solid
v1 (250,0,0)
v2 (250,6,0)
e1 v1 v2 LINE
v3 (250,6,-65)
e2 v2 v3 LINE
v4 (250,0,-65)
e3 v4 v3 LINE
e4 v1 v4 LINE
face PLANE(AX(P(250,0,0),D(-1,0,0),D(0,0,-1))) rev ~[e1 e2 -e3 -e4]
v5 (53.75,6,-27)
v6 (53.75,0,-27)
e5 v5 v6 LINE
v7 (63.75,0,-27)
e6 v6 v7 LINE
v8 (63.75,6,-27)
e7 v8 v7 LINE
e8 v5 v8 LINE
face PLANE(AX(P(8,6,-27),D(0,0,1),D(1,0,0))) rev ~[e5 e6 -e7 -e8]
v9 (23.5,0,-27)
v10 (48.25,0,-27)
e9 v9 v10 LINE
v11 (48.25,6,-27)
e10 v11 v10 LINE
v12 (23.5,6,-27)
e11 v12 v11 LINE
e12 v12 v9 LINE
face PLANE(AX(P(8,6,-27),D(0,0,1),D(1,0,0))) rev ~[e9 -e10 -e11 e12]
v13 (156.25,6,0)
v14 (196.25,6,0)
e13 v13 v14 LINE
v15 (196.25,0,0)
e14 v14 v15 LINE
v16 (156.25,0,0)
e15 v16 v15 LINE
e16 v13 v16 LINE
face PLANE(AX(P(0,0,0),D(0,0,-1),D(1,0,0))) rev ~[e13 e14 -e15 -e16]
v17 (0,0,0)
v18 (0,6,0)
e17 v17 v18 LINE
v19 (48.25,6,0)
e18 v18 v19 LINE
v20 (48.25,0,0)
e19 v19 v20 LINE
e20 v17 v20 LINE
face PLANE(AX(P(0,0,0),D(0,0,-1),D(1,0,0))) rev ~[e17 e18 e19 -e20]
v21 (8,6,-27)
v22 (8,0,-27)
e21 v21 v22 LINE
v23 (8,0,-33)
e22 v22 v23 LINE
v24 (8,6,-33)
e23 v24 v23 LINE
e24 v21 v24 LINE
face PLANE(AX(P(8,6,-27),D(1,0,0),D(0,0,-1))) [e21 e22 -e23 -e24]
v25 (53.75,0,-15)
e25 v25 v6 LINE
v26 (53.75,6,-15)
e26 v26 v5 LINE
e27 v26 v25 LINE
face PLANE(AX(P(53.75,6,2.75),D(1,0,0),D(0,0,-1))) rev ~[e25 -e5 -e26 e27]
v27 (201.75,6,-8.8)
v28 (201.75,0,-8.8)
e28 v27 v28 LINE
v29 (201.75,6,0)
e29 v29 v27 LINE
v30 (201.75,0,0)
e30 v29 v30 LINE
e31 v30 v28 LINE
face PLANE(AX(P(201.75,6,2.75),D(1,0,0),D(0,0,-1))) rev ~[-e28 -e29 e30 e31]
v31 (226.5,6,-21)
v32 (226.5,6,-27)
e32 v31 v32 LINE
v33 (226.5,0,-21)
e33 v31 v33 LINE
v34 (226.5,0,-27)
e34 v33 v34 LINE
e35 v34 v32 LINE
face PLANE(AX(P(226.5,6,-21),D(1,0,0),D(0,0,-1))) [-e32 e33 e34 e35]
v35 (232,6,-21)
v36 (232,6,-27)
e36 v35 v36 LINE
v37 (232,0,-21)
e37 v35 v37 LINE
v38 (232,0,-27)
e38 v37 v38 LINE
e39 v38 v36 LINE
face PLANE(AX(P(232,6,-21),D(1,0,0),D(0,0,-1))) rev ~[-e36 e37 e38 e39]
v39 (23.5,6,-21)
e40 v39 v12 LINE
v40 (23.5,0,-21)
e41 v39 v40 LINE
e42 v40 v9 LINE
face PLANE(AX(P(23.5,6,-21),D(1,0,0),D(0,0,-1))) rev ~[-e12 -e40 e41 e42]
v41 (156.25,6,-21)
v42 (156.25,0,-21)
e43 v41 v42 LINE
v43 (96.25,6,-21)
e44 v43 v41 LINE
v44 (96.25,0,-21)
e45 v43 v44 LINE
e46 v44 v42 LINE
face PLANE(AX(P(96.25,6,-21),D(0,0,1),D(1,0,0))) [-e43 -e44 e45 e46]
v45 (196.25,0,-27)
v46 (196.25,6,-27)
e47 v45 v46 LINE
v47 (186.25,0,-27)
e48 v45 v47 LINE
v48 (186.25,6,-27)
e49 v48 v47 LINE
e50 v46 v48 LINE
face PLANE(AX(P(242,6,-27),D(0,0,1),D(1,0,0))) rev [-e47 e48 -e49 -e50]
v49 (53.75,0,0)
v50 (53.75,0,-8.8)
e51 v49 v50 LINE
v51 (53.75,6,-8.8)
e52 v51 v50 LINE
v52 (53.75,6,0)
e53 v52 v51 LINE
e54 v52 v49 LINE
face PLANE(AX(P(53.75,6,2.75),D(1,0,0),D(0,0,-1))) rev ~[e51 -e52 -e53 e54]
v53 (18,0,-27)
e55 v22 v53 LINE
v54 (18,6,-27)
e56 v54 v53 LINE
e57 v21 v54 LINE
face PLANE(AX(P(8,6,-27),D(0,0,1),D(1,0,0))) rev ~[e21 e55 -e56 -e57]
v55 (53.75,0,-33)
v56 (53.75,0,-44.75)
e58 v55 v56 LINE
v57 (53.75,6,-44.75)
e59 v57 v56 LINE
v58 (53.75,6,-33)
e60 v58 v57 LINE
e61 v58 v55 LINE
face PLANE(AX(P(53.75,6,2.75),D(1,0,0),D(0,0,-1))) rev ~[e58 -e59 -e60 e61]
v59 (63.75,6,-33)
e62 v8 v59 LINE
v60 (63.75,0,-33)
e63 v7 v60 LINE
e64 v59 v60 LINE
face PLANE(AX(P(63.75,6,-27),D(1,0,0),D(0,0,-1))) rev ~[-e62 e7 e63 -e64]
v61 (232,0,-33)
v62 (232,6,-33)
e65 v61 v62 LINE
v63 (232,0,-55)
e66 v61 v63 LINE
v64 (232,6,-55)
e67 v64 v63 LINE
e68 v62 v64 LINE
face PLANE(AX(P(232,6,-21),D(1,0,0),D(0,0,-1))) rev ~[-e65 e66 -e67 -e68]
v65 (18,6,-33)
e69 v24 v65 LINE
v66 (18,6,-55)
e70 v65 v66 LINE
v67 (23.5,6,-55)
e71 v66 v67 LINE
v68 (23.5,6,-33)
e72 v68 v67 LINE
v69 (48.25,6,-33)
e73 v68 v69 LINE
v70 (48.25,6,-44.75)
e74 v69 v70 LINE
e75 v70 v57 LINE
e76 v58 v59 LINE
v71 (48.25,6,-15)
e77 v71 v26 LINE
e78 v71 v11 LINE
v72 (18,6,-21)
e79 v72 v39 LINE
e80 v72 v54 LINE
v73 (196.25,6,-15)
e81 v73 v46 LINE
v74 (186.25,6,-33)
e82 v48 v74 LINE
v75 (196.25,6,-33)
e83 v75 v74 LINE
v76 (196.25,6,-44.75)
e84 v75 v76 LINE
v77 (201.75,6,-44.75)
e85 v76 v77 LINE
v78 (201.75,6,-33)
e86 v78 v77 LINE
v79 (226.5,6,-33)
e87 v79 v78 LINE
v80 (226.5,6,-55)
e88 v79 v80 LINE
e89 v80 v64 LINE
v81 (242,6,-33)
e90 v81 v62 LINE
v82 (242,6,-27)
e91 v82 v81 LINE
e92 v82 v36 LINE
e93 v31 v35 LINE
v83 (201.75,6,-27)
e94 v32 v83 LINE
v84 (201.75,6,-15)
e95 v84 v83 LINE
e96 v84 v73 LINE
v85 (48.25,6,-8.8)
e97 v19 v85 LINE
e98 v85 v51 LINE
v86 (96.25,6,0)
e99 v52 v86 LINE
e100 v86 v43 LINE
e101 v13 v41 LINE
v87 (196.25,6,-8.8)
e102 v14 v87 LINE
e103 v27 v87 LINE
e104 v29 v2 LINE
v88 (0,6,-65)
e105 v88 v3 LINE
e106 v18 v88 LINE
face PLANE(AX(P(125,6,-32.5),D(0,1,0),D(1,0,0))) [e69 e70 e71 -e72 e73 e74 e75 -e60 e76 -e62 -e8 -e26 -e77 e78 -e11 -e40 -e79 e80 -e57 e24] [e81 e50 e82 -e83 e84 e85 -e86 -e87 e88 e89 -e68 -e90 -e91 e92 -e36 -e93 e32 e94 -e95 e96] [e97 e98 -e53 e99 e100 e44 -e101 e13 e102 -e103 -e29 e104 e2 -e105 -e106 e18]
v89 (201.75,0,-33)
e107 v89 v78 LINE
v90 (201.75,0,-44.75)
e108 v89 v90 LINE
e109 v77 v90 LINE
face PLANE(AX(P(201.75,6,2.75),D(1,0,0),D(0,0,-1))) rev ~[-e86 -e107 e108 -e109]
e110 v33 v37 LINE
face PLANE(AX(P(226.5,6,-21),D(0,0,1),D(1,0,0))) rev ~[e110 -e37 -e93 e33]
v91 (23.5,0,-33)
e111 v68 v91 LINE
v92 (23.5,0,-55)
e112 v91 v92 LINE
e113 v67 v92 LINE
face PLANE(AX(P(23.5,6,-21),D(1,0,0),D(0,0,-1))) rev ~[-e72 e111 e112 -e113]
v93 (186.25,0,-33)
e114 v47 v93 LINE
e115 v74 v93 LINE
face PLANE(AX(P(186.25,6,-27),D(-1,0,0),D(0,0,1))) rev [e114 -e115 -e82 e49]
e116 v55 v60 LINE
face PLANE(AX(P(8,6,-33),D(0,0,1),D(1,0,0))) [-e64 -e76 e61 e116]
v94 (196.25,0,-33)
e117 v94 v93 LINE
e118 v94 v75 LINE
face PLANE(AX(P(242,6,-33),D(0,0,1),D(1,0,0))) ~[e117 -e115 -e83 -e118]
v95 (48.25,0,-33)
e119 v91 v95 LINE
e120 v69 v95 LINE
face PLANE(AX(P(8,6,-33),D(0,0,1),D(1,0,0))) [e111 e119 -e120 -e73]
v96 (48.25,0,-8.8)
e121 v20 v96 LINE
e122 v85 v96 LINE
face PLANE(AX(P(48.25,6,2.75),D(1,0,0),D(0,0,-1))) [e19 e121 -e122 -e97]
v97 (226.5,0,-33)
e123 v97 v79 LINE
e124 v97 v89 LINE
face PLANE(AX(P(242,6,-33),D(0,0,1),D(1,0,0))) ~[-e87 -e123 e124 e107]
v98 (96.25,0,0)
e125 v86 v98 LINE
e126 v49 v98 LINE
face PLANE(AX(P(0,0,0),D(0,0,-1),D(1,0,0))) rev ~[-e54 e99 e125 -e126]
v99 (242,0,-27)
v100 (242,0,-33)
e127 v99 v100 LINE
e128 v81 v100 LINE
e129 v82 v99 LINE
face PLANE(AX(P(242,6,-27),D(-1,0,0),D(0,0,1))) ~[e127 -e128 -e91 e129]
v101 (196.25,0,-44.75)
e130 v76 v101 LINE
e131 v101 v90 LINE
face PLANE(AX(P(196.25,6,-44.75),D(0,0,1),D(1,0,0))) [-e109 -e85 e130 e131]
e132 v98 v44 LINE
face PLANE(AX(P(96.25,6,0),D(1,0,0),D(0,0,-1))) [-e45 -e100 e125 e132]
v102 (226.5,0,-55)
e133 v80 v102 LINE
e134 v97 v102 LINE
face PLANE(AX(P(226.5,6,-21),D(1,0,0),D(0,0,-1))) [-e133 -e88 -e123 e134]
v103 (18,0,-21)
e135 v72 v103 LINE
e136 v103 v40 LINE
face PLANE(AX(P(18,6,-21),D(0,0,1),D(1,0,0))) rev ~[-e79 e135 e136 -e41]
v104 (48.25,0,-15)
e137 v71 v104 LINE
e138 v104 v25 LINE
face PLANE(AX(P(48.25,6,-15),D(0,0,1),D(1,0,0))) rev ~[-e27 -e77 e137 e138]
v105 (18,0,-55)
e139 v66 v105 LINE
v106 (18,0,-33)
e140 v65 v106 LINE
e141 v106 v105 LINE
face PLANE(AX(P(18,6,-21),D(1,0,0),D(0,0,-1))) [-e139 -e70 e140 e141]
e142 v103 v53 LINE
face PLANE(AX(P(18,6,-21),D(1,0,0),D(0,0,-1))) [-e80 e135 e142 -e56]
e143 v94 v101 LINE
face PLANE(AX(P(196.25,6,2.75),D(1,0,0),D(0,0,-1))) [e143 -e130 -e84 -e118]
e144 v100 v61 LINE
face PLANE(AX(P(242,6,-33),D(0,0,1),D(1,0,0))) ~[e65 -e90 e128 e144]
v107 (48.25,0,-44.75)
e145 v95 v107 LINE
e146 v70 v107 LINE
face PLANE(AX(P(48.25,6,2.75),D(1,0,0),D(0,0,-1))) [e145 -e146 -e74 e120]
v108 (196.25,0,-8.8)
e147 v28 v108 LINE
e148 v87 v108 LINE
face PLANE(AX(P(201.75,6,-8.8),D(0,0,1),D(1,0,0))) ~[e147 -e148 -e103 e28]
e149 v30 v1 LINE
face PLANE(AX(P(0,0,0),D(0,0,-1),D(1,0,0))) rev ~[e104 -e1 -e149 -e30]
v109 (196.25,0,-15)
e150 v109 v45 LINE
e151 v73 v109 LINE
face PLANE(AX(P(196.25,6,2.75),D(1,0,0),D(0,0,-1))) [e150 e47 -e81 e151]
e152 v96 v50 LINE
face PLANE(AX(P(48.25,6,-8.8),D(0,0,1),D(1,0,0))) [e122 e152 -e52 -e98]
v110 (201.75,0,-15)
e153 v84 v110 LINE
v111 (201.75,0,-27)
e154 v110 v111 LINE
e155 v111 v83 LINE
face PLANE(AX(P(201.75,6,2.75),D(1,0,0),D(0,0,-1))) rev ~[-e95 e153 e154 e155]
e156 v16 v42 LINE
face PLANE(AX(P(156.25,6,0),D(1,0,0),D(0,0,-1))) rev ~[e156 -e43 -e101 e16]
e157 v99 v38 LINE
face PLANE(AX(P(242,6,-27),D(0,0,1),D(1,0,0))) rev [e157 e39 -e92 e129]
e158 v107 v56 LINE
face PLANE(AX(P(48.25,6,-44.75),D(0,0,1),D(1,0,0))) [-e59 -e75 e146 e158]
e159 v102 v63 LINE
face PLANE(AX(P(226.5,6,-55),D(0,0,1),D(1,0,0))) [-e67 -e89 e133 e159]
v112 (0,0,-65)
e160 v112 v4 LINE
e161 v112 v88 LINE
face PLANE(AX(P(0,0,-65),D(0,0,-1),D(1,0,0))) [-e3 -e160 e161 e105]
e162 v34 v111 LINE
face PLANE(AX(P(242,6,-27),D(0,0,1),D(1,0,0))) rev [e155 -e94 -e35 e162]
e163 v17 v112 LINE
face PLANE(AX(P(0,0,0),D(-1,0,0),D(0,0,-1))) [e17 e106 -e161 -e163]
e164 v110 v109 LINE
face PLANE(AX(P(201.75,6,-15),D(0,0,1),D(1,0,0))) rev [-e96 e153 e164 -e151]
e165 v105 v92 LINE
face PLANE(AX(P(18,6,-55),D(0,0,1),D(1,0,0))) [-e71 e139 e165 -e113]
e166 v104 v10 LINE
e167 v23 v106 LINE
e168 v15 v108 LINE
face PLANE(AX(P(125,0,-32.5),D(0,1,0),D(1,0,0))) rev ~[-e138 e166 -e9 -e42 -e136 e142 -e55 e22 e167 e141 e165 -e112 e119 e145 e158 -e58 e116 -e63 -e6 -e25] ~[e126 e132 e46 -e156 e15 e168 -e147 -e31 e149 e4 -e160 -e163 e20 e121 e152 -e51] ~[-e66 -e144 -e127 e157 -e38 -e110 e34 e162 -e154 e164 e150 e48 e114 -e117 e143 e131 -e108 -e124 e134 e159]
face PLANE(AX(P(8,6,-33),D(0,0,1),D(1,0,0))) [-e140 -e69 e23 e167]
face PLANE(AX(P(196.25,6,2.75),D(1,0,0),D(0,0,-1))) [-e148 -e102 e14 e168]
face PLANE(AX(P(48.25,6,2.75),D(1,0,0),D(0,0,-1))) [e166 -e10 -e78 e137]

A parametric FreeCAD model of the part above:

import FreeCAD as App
import Part
import Sketcher
from FreeCAD import Vector


def add_polygon(sketch, points):
    """Adds a closed chain of lines whose ends are joined by coincident constraints."""
    first, n = sketch.GeometryCount, len(points)
    for a, b in zip(points, points[1:] + points[:1]):
        sketch.addGeometry(Part.LineSegment(App.Vector(*a, 0), App.Vector(*b, 0)), False)
    for i in range(n):
        sketch.addConstraint(Sketcher.Constraint("Coincident", first + i, 2, first + (i + 1) % n, 1))

doc = App.newDocument("Part")
body = doc.addObject("PartDesign::Body", "Body")

sketch1 = body.newObject("Sketcher::SketchObject", "Sketch")
sketch1.AttachmentSupport = (doc.getObject("XZ_Plane"), [""])
sketch1.MapMode = "FlatFace"
add_polygon(sketch1, [(0, -65), (0, 0), (250, 0), (250, -65)])
sketch1.addConstraint([
    Sketcher.Constraint("Vertical", 0),
    Sketcher.Constraint("Horizontal", 1),
    Sketcher.Constraint("Vertical", 2),
    Sketcher.Constraint("Horizontal", 3),
    Sketcher.Constraint("Coincident", 0, 2, -1, 1),
    Sketcher.Constraint("DistanceX", 1, 1, 1, 2, 250.0),
    Sketcher.Constraint("DistanceY", 0, 1, 0, 2, 65.0),
])
pad1 = body.newObject("PartDesign::Pad", "Pad")
pad1.Profile = sketch1
pad1.Length = 6
pad1.Reversed = True

sketch2 = body.newObject("Sketcher::SketchObject", "Sketch001")
sketch2.AttachmentSupport = (doc.getObject("XZ_Plane"), [""])
sketch2.MapMode = "FlatFace"
sketch2.AttachmentOffset = App.Placement(Vector(0, 0, -6), App.Rotation())
add_polygon(sketch2, [(18, -55), (18, -21), (24, -21), (24, -55)])
add_polygon(sketch2, [(48, -45), (48, 3), (54, 3), (54, -45)])
add_polygon(sketch2, [(196, -45), (196, 3), (202, 3), (202, -45)])
add_polygon(sketch2, [(226, -55), (226, -21), (232, -21), (232, -55)])
sketch2.addConstraint([
    Sketcher.Constraint("Vertical", 0),
    Sketcher.Constraint("Horizontal", 1),
    Sketcher.Constraint("Vertical", 2),
    Sketcher.Constraint("Horizontal", 3),
    Sketcher.Constraint("Vertical", 4),
    Sketcher.Constraint("Horizontal", 5),
    Sketcher.Constraint("Vertical", 6),
    Sketcher.Constraint("Horizontal", 7),
    Sketcher.Constraint("Vertical", 8),
    Sketcher.Constraint("Horizontal", 9),
    Sketcher.Constraint("Vertical", 10),
    Sketcher.Constraint("Horizontal", 11),
    Sketcher.Constraint("Vertical", 12),
    Sketcher.Constraint("Horizontal", 13),
    Sketcher.Constraint("Vertical", 14),
    Sketcher.Constraint("Horizontal", 15),
    Sketcher.Constraint("Horizontal", 5, 2, 8, 2),
    Sketcher.Constraint("Horizontal", 7, 2, 10, 2),
    Sketcher.Constraint("Horizontal", 1, 2, 12, 2),
    Sketcher.Constraint("Horizontal", 3, 2, 14, 2),
    Sketcher.Constraint("Equal", 3, 5),
    Sketcher.Constraint("Equal", 7, 9),
    Sketcher.Constraint("Equal", 11, 13),
    Sketcher.Constraint("DistanceY", 0, 1, 0, 2, 34.0),
    Sketcher.Constraint("DistanceX", 1, 1, 1, 2, 5.5),
    Sketcher.Constraint("DistanceY", 4, 1, 4, 2, 47.5),
    Sketcher.Constraint("DistanceX", -1, 1, 0, 2, 18.0),
    Sketcher.Constraint("DistanceY", 0, 2, -1, 1, 21.0),
    Sketcher.Constraint("DistanceX", -1, 1, 13, 2, 232.0),
    Sketcher.Constraint("DistanceX", 4, 2, 8, 2, 148.0),
    Sketcher.Constraint("DistanceX", -1, 1, 4, 2, 48.25),
    Sketcher.Constraint("DistanceY", -1, 1, 4, 2, 2.75),
])
pocket1 = body.newObject("PartDesign::Pocket", "Pocket")
pocket1.Profile = sketch2
pocket1.Type = "ThroughAll"
pocket1.Reversed = True

sketch3 = body.newObject("Sketcher::SketchObject", "Sketch002")
sketch3.AttachmentSupport = (doc.getObject("XZ_Plane"), [""])
sketch3.MapMode = "FlatFace"
sketch3.AttachmentOffset = App.Placement(Vector(0, 0, -6), App.Rotation())
add_polygon(sketch3, [(96, -21), (96, 0), (156, 0), (156, -21)])
sketch3.addConstraint([
    Sketcher.Constraint("Vertical", 0),
    Sketcher.Constraint("Horizontal", 1),
    Sketcher.Constraint("Vertical", 2),
    Sketcher.Constraint("Horizontal", 3),
    Sketcher.Constraint("PointOnObject", 0, 2, -1),
    Sketcher.Constraint("DistanceX", 1, 1, 1, 2, 60.0),
    Sketcher.Constraint("DistanceY", 0, 1, 0, 2, 21.0),
    Sketcher.Constraint("DistanceX", -1, 1, 0, 2, 96.25),
])
pocket2 = body.newObject("PartDesign::Pocket", "Pocket001")
pocket2.Profile = sketch3
pocket2.Type = "ThroughAll"
pocket2.Reversed = True

sketch4 = body.newObject("Sketcher::SketchObject", "Sketch003")
sketch4.AttachmentSupport = (doc.getObject("XZ_Plane"), [""])
sketch4.MapMode = "FlatFace"
sketch4.AttachmentOffset = App.Placement(Vector(0, 0, -6), App.Rotation())
add_polygon(sketch4, [(8, -33), (8, -27), (64, -27), (64, -33)])
sketch4.addConstraint([
    Sketcher.Constraint("Vertical", 0),
    Sketcher.Constraint("Horizontal", 1),
    Sketcher.Constraint("Vertical", 2),
    Sketcher.Constraint("Horizontal", 3),
    Sketcher.Constraint("DistanceY", 0, 1, 0, 2, 6.0),
    Sketcher.Constraint("DistanceX", -1, 1, 0, 2, 8.0),
    Sketcher.Constraint("DistanceY", 0, 2, -1, 1, 27.0),
    Sketcher.Constraint("DistanceX", 1, 1, 1, 2, 55.75),
])
pocket3 = body.newObject("PartDesign::Pocket", "Pocket002")
pocket3.Profile = sketch4
pocket3.Type = "ThroughAll"
pocket3.Reversed = True

sketch5 = body.newObject("Sketcher::SketchObject", "Sketch004")
sketch5.AttachmentSupport = (doc.getObject("XZ_Plane"), [""])
sketch5.MapMode = "FlatFace"
sketch5.AttachmentOffset = App.Placement(Vector(0, 0, -6), App.Rotation())
add_polygon(sketch5, [(48, -15), (48, -9), (54, -9), (54, -15)])
sketch5.addConstraint([
    Sketcher.Constraint("Vertical", 0),
    Sketcher.Constraint("Horizontal", 1),
    Sketcher.Constraint("Vertical", 2),
    Sketcher.Constraint("Horizontal", 3),
    Sketcher.Constraint("DistanceX", 1, 1, 1, 2, 5.5),
    Sketcher.Constraint("DistanceY", 0, 1, 0, 2, 6.2),
    Sketcher.Constraint("DistanceY", 2, 2, -1, 1, 15.0),
    Sketcher.Constraint("DistanceX", -1, 1, 0, 2, 48.25),
])
pad2 = body.newObject("PartDesign::Pad", "Pad001")
pad2.Profile = sketch5
pad2.Length = 6
doc.recompute()

datumplane = body.newObject("PartDesign::Plane", "DatumPlane")
datumplane.AttachmentSupport = (doc.getObject("YZ_Plane"), [""])
datumplane.MapMode = "FlatFace"
datumplane.AttachmentOffset = App.Placement(Vector(0, 0, 125), App.Rotation())
mirrored = body.newObject("PartDesign::Mirrored", "Mirrored")
mirrored.Originals = [pocket3, pad2]
mirrored.MirrorPlane = (datumplane, [""])
body.Tip = mirrored

doc.recompute()
